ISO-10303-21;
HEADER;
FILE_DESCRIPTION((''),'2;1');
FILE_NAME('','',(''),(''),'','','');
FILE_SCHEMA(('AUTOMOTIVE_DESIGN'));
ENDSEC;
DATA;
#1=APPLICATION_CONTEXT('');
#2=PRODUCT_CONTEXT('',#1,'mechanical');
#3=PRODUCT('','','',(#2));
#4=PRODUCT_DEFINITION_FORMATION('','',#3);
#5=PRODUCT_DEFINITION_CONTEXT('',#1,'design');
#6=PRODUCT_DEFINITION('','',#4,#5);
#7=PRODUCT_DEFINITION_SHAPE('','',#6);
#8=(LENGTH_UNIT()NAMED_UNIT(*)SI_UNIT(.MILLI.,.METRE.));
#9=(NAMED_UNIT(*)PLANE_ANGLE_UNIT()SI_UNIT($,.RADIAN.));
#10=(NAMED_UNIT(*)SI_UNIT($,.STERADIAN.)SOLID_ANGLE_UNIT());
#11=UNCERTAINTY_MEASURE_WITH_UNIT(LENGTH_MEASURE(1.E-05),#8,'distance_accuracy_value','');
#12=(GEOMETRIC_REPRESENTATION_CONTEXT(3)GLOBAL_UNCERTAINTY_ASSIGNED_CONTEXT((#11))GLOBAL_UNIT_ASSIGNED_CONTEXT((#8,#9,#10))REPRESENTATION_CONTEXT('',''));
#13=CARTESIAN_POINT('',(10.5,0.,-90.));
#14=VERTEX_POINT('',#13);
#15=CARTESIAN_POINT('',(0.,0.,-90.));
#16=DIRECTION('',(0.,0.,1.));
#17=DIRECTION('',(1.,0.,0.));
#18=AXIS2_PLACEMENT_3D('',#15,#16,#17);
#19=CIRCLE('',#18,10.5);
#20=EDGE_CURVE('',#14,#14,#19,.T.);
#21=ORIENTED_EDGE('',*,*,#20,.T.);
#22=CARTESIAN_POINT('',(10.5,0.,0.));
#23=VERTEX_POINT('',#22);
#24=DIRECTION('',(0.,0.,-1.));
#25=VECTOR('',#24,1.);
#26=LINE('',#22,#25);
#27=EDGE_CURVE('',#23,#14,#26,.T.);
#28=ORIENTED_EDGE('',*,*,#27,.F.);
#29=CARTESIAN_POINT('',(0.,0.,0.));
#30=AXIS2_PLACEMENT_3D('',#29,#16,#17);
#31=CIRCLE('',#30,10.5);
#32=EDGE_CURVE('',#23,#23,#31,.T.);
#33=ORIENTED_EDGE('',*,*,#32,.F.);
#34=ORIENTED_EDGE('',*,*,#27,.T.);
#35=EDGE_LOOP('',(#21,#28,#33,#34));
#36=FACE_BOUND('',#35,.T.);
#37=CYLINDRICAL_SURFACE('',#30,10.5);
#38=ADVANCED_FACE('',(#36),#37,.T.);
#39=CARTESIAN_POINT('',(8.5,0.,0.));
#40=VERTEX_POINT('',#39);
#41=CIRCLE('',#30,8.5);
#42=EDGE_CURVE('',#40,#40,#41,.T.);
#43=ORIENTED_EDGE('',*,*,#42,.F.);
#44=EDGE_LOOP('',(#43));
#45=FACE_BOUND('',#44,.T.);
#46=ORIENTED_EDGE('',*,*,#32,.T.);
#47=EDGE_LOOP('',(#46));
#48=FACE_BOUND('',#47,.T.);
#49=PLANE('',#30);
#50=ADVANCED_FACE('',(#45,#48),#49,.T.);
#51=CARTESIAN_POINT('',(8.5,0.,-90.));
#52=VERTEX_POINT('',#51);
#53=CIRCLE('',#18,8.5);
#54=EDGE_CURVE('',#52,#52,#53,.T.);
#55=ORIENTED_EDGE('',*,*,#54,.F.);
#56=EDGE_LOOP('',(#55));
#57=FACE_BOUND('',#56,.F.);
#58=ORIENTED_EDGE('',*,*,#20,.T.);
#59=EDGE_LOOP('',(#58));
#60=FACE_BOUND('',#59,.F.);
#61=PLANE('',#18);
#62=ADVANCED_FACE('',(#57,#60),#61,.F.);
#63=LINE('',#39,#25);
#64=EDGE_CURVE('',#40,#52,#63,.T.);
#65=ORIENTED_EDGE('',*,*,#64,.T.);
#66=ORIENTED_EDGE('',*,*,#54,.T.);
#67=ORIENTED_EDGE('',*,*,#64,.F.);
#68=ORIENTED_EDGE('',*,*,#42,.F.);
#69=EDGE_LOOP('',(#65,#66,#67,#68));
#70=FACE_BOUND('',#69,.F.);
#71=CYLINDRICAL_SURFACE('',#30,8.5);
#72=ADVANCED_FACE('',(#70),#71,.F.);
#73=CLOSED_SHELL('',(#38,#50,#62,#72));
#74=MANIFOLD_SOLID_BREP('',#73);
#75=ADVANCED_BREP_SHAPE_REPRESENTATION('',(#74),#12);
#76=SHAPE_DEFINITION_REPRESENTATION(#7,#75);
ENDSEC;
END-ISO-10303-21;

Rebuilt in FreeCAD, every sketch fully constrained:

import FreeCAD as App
import Part
import Sketcher
Q = App.Units.Quantity

doc = App.newDocument("Part")
body = doc.addObject("PartDesign::Body", "Body")

# Sketch on XY plane
sketch1 = body.newObject("Sketcher::SketchObject", "Sketch")
sketch1.AttachmentSupport = (doc.getObject("XY_Plane"), [""])
sketch1.MapMode = "FlatFace"
sketch1.addGeometry([
    Part.Circle(App.Vector(0, 0, 0), App.Vector(0, 0, 1), 10),
    Part.Circle(App.Vector(0, 0, 0), App.Vector(0, 0, 1), 8),
], False)
sketch1.addConstraint([
    Sketcher.Constraint("Coincident", 0, 3, -1, 1),
    Sketcher.Constraint("Coincident", 1, 3, -1, 1),
    Sketcher.Constraint("Diameter", 0, Q("21 mm")),
    Sketcher.Constraint("Diameter", 1, Q("17 mm")),
])
pad1 = body.newObject("PartDesign::Pad", "Pad")
pad1.Profile = sketch1
pad1.Length = 90
pad1.Reversed = True

doc.recompute()
